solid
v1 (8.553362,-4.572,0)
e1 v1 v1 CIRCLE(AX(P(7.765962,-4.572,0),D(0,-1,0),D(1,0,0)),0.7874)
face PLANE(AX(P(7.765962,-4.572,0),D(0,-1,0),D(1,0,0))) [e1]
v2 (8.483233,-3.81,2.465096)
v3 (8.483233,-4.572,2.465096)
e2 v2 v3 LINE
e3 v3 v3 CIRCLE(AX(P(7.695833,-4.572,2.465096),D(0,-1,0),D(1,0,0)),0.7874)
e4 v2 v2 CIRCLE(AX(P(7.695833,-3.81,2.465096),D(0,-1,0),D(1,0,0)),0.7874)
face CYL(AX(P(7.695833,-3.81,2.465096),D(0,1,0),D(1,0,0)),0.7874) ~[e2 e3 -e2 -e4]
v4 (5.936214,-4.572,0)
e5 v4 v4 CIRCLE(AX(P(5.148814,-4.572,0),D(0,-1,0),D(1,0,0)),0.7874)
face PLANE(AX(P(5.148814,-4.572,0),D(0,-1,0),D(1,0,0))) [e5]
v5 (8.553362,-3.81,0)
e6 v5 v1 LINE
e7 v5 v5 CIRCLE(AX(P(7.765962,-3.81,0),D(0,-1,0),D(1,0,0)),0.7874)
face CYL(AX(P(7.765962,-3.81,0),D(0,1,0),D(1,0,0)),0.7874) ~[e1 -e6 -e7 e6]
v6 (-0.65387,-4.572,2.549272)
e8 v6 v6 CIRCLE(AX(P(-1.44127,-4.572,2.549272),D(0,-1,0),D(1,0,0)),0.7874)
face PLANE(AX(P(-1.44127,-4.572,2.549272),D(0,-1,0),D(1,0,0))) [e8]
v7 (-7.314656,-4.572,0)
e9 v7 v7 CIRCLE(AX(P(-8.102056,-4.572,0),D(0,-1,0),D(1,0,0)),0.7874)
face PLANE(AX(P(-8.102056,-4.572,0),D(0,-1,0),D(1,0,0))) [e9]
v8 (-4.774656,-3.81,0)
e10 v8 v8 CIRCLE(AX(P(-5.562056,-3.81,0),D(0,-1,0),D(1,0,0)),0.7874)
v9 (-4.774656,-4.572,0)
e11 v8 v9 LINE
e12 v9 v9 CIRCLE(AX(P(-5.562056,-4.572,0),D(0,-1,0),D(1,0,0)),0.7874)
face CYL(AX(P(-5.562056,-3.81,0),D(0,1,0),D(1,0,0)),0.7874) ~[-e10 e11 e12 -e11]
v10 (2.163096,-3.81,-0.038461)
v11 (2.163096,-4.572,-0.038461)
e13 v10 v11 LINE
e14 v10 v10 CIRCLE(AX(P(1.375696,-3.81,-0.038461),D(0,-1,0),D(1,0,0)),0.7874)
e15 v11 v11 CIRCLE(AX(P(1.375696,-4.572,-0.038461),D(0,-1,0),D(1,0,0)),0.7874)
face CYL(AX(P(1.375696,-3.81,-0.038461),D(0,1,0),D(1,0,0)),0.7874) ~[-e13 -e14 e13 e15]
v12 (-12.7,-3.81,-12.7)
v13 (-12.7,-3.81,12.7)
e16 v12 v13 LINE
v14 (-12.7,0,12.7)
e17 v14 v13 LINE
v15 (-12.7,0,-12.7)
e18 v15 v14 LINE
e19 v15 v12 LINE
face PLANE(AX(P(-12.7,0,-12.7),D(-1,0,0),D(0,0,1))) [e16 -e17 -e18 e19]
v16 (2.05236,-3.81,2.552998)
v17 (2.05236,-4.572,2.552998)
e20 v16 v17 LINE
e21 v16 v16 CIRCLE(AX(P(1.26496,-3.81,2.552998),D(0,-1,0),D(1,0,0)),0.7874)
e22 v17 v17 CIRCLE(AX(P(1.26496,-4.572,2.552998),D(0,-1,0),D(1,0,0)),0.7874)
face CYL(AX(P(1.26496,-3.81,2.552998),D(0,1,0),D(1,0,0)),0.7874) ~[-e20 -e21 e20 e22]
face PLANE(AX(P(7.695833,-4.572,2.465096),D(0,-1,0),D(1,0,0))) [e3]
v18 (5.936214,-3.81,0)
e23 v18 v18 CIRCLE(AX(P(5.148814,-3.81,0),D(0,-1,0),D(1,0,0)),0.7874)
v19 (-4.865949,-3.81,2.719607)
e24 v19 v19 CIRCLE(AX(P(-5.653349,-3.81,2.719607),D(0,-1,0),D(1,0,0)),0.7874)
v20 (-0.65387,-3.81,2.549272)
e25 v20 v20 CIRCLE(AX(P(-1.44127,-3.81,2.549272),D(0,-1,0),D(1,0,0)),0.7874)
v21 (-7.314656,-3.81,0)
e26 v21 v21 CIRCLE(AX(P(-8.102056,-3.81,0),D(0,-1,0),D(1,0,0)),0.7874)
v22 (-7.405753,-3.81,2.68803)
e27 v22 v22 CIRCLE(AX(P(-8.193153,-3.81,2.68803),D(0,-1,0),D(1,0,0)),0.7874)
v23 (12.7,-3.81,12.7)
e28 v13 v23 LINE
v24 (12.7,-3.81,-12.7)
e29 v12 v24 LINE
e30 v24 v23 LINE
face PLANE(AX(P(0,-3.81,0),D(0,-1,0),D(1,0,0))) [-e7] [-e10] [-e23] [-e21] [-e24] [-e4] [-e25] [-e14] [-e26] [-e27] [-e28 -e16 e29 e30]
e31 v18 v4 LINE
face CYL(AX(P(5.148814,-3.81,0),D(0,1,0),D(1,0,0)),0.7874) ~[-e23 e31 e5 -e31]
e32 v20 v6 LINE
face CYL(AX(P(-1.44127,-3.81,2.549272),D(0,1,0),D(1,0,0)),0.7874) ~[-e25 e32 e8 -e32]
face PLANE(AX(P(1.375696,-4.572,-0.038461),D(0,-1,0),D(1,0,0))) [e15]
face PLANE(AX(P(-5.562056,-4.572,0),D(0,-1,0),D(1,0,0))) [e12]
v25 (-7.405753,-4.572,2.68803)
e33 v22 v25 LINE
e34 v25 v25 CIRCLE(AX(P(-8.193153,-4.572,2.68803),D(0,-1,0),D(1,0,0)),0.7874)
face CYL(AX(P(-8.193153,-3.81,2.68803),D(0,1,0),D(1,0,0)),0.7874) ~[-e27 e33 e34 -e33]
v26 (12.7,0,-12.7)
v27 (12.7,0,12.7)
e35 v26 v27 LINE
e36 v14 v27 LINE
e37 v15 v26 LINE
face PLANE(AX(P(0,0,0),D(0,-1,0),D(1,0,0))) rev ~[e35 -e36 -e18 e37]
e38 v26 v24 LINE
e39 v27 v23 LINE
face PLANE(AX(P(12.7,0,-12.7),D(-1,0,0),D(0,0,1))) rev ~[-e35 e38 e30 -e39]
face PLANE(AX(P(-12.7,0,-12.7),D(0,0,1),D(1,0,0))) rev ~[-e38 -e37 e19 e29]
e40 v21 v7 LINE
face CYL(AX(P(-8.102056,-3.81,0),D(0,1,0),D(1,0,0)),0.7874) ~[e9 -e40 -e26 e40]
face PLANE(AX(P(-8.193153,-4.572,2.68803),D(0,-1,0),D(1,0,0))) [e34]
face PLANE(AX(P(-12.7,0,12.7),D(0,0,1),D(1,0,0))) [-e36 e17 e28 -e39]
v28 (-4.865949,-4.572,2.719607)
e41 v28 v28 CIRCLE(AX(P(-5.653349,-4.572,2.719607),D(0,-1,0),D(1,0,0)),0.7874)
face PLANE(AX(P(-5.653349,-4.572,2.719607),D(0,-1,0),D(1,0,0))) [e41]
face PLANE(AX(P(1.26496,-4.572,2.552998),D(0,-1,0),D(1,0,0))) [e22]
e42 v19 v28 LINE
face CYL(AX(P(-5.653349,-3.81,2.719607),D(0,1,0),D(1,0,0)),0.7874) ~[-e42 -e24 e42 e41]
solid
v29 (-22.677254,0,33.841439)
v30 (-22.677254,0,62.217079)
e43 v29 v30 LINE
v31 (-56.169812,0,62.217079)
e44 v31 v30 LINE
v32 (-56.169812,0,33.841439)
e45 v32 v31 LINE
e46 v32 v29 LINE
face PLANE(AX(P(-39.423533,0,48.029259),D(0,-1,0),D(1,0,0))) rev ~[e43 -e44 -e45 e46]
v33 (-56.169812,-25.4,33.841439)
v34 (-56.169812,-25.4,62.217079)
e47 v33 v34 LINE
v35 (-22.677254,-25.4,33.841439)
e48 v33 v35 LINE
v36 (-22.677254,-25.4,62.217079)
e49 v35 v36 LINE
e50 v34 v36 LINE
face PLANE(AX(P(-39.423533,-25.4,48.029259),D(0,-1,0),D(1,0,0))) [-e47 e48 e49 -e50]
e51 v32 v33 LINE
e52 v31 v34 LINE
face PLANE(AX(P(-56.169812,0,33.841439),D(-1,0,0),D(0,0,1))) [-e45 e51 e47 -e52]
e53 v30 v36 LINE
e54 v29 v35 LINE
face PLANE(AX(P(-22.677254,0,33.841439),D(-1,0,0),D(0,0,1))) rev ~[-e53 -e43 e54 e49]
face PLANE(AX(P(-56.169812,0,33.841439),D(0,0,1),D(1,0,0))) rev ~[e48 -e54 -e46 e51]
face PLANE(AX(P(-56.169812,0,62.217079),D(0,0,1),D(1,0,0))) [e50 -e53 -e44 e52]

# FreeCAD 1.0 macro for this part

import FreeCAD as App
import Part
import Sketcher
Q = App.Units.Quantity


def add_polygon(sketch, points):
    """Adds a closed chain of lines whose ends are joined by coincident constraints."""
    first, n = sketch.GeometryCount, len(points)
    for a, b in zip(points, points[1:] + points[:1]):
        sketch.addGeometry(Part.LineSegment(App.Vector(*a, 0), App.Vector(*b, 0)), False)
    for i in range(n):
        sketch.addConstraint(Sketcher.Constraint("Coincident", first + i, 2, first + (i + 1) % n, 1))

doc = App.newDocument("Part")
body = doc.addObject("PartDesign::Body", "Body")

# Sketch on XZ plane
sketch1 = body.newObject("Sketcher::SketchObject", "Sketch")
sketch1.AttachmentSupport = (doc.getObject("XZ_Plane"), [""])
sketch1.MapMode = "FlatFace"
add_polygon(sketch1, [(-13, 13), (-13, -13), (13, -13), (13, 13)])  # lines 0-3
sketch1.addConstraint(Sketcher.Constraint("Vertical", 0))
sketch1.addConstraint(Sketcher.Constraint("Horizontal", 1))
sketch1.addConstraint(Sketcher.Constraint("Vertical", 2))
sketch1.addConstraint(Sketcher.Constraint("Horizontal", 3))
sketch1.addConstraint(Sketcher.Constraint("Symmetric", 0, 2, 2, 2, -1, 1))
sketch1.addConstraint(Sketcher.Constraint("Equal", 3, 0))
sketch1.addConstraint(Sketcher.Constraint("DistanceX", 1, 1, 1, 2, Q("1 in")))
pad1 = body.newObject("PartDesign::Pad", "Pad")
pad1.Profile = sketch1
pad1.Length = Q("0.15 in")

# Sketch on XZ plane
sketch2 = body.newObject("Sketcher::SketchObject", "Sketch001")
sketch2.AttachmentSupport = (doc.getObject("XZ_Plane"), [""])
sketch2.MapMode = "FlatFace"
sketch2.AttachmentOffset = App.Placement(App.Vector(0, 0, 0.15 * 25.4), App.Rotation())
sketch2.addGeometry(Part.Circle(App.Vector(-5.6, 0, 0), App.Vector(0, 0, 1), 0.8), False)
sketch2.addGeometry(Part.Circle(App.Vector(-8.1, 0, 0), App.Vector(0, 0, 1), 0.8), False)
sketch2.addGeometry(Part.Circle(App.Vector(-8.2, 2.7, 0), App.Vector(0, 0, 1), 0.8), False)
sketch2.addGeometry(Part.Circle(App.Vector(-5.7, 2.7, 0), App.Vector(0, 0, 1), 0.8), False)
sketch2.addGeometry(Part.Circle(App.Vector(7.7, 2.5, 0), App.Vector(0, 0, 1), 0.8), False)
sketch2.addGeometry(Part.Circle(App.Vector(5.1, 0, 0), App.Vector(0, 0, 1), 0.8), False)
sketch2.addGeometry(Part.Circle(App.Vector(7.8, 0, 0), App.Vector(0, 0, 1), 0.8), False)
sketch2.addGeometry(Part.Circle(App.Vector(1.4, 0, 0), App.Vector(0, 0, 1), 0.8), False)
sketch2.addGeometry(Part.Circle(App.Vector(-1.4, 2.5, 0), App.Vector(0, 0, 1), 0.8), False)
sketch2.addGeometry(Part.Circle(App.Vector(1.3, 2.6, 0), App.Vector(0, 0, 1), 0.8), False)
sketch2.addConstraint(Sketcher.Constraint("Equal", 0, 1))
sketch2.addConstraint(Sketcher.Constraint("Equal", 1, 2))
sketch2.addConstraint(Sketcher.Constraint("Equal", 2, 3))
sketch2.addConstraint(Sketcher.Constraint("Equal", 3, 4))
sketch2.addConstraint(Sketcher.Constraint("Equal", 4, 5))
sketch2.addConstraint(Sketcher.Constraint("Equal", 5, 6))
sketch2.addConstraint(Sketcher.Constraint("Equal", 6, 7))
sketch2.addConstraint(Sketcher.Constraint("Equal", 7, 8))
sketch2.addConstraint(Sketcher.Constraint("Equal", 8, 9))
sketch2.addConstraint(Sketcher.Constraint("PointOnObject", 0, 3, -1))
sketch2.addConstraint(Sketcher.Constraint("PointOnObject", 1, 3, -1))
sketch2.addConstraint(Sketcher.Constraint("PointOnObject", 5, 3, -1))
sketch2.addConstraint(Sketcher.Constraint("PointOnObject", 6, 3, -1))
sketch2.addConstraint(Sketcher.Constraint("Diameter", 0, Q("0.062 in")))
sketch2.addConstraint(Sketcher.Constraint("DistanceX", 1, 3, 0, 3, Q("0.1 in")))
sketch2.addConstraint(Sketcher.Constraint("DistanceY", -1, 1, 9, 3, 2.552998))
sketch2.addConstraint(Sketcher.Constraint("DistanceY", -1, 1, 2, 3, 2.68803))
sketch2.addConstraint(Sketcher.Constraint("DistanceX", 3, 3, -1, 1, 5.653349))
sketch2.addConstraint(Sketcher.Constraint("DistanceY", 7, 3, -1, 1, 0.038461))
sketch2.addConstraint(Sketcher.Constraint("DistanceX", 8, 3, -1, 1, 1.44127))
sketch2.addConstraint(Sketcher.Constraint("DistanceX", -1, 1, 9, 3, 1.26496))
sketch2.addConstraint(Sketcher.Constraint("DistanceY", 4, 3, 3, 3, 0.254511))
sketch2.addConstraint(Sketcher.Constraint("DistanceX", 0, 3, 4, 3, 13.257889))
sketch2.addConstraint(Sketcher.Constraint("DistanceX", 5, 3, 4, 3, 2.547019))
sketch2.addConstraint(Sketcher.Constraint("DistanceX", 4, 3, 6, 3, 0.070129))
sketch2.addConstraint(Sketcher.Constraint("DistanceX", 3, 3, 6, 3, 13.419311))
sketch2.addConstraint(Sketcher.Constraint("DistanceX", 0, 3, 7, 3, 6.937752))
sketch2.addConstraint(Sketcher.Constraint("DistanceY", 9, 3, 3, 3, 0.166609))
sketch2.addConstraint(Sketcher.Constraint("DistanceX", 2, 3, -1, 1, 8.193153))
sketch2.addConstraint(Sketcher.Constraint("DistanceY", -1, 1, 8, 3, 2.549272))
pad2 = body.newObject("PartDesign::Pad", "Pad001")
pad2.Profile = sketch2
pad2.Length = Q("0.03 in")
body2 = doc.addObject("PartDesign::Body", "Body001")

# Sketch on XZ plane
sketch3 = body2.newObject("Sketcher::SketchObject", "Sketch002")
sketch3.AttachmentSupport = (doc.getObject("XZ_Plane001"), [""])
sketch3.MapMode = "FlatFace"
add_polygon(sketch3, [(-56, 62), (-56, 34), (-23, 34), (-23, 62)])  # lines 0-3
sketch3.addConstraint(Sketcher.Constraint("Vertical", 0))
sketch3.addConstraint(Sketcher.Constraint("Horizontal", 1))
sketch3.addConstraint(Sketcher.Constraint("Vertical", 2))
sketch3.addConstraint(Sketcher.Constraint("Horizontal", 3))
sketch3.addConstraint(Sketcher.Constraint("DistanceX", 1, 1, 1, 2, 33.492558))
sketch3.addConstraint(Sketcher.Constraint("DistanceY", 0, 2, 0, 1, 28.37564))
sketch3.addConstraint(Sketcher.Constraint("DistanceY", -1, 1, 0, 2, 33.841439))
sketch3.addConstraint(Sketcher.Constraint("DistanceX", 0, 2, -1, 1, 56.169812))
pad3 = body2.newObject("PartDesign::Pad", "Pad002")
pad3.Profile = sketch3
pad3.Length = Q("1 in")

doc.recompute()
